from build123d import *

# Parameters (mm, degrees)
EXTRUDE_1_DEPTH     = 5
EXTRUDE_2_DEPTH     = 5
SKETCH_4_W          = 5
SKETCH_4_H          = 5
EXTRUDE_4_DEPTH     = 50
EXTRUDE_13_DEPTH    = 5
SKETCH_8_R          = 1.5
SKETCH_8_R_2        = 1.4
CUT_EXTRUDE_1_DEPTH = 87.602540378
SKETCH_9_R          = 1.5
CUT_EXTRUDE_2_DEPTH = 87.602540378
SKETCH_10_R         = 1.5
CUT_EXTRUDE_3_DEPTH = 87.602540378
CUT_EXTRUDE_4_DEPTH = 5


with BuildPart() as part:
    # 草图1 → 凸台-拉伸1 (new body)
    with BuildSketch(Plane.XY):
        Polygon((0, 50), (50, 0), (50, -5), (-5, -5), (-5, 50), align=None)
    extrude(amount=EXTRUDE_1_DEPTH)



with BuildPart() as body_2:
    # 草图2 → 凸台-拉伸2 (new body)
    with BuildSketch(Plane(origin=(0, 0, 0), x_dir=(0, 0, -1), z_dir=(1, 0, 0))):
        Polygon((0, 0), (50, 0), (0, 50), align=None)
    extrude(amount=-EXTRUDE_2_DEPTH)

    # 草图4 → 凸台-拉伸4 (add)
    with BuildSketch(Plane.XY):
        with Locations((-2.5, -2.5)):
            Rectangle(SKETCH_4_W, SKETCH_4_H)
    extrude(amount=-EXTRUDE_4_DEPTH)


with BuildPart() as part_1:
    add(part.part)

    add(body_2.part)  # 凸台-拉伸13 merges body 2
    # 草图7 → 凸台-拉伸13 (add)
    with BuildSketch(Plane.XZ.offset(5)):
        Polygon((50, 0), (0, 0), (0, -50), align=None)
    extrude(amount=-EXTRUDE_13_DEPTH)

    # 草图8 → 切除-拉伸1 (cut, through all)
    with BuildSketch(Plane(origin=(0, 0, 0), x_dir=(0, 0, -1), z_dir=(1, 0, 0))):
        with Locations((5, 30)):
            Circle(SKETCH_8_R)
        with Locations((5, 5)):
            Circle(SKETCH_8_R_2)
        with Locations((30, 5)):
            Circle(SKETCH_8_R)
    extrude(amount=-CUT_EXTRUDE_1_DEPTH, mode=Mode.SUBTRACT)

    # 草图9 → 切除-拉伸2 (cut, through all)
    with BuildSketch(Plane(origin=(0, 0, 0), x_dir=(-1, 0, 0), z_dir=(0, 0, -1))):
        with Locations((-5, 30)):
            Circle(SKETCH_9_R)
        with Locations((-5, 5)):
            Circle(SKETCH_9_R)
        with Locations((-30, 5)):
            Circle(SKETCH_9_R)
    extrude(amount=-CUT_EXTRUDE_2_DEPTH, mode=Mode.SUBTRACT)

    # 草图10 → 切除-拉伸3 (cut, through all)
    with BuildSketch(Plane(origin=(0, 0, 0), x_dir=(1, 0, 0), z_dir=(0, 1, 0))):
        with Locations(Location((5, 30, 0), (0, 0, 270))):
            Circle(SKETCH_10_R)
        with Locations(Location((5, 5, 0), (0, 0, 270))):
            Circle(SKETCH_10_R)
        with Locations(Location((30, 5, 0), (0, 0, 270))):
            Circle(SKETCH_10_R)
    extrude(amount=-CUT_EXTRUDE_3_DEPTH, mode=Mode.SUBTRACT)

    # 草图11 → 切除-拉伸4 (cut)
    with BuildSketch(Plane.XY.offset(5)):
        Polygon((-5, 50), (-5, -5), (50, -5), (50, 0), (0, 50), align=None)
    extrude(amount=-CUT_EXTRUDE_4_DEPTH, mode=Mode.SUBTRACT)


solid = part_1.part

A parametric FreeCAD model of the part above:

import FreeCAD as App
import Part
import Sketcher


def add_polygon(sketch, points):
    """Adds a closed chain of lines whose ends are joined by coincident constraints."""
    first, n = sketch.GeometryCount, len(points)
    for a, b in zip(points, points[1:] + points[:1]):
        sketch.addGeometry(Part.LineSegment(App.Vector(*a, 0), App.Vector(*b, 0)), False)
    for i in range(n):
        sketch.addConstraint(Sketcher.Constraint("Coincident", first + i, 2, first + (i + 1) % n, 1))

doc = App.newDocument("Part")
body = doc.addObject("PartDesign::Body", "Body")

# Sketch on XY plane
sketch1 = body.newObject("Sketcher::SketchObject", "Sketch")
sketch1.AttachmentSupport = (doc.getObject("XY_Plane"), [""])
sketch1.MapMode = "FlatFace"
add_polygon(sketch1, [(50, 0), (0, 50), (-5, 50), (-5, -5), (50, -5)])  # lines 0-4
sketch1.addConstraint(Sketcher.Constraint("Horizontal", 1))
sketch1.addConstraint(Sketcher.Constraint("Vertical", 2))
sketch1.addConstraint(Sketcher.Constraint("Horizontal", 3))
sketch1.addConstraint(Sketcher.Constraint("Vertical", 4))
sketch1.addConstraint(Sketcher.Constraint("PointOnObject", 0, 2, -2))
sketch1.addConstraint(Sketcher.Constraint("PointOnObject", 4, 2, -1))
sketch1.addConstraint(Sketcher.Constraint("Equal", 3, 2))
sketch1.addConstraint(Sketcher.Constraint("Equal", 1, 4))
sketch1.addConstraint(Sketcher.Constraint("DistanceX", 1, 2, 1, 1, 5.0))
sketch1.addConstraint(Sketcher.Constraint("DistanceX", 3, 1, 3, 2, 55.0))
pad1 = body.newObject("PartDesign::Pad", "Pad")
pad1.Profile = sketch1
pad1.Length = 5
body2 = doc.addObject("PartDesign::Body", "Body001")

# Sketch on YZ plane
sketch2 = body2.newObject("Sketcher::SketchObject", "Sketch001")
sketch2.AttachmentSupport = (doc.getObject("YZ_Plane001"), [""])
sketch2.MapMode = "FlatFace"
add_polygon(sketch2, [(0, 0), (0, -50), (50, 0)])  # lines 0-2
sketch2.addConstraint(Sketcher.Constraint("Vertical", 0))
sketch2.addConstraint(Sketcher.Constraint("Horizontal", 2))
sketch2.addConstraint(Sketcher.Constraint("Coincident", 2, 2, -1, 1))
sketch2.addConstraint(Sketcher.Constraint("Equal", 2, 0))
sketch2.addConstraint(Sketcher.Constraint("DistanceX", 2, 2, 2, 1, 50.0))
pad2 = body2.newObject("PartDesign::Pad", "Pad001")
pad2.Profile = sketch2
pad2.Length = 5
pad2.Reversed = True

# Sketch on XY plane
sketch3 = body2.newObject("Sketcher::SketchObject", "Sketch002")
sketch3.AttachmentSupport = (doc.getObject("XY_Plane001"), [""])
sketch3.MapMode = "FlatFace"
add_polygon(sketch3, [(-5, 0), (-5, -5), (0, -5), (0, 0)])  # lines 0-3
sketch3.addConstraint(Sketcher.Constraint("Vertical", 0))
sketch3.addConstraint(Sketcher.Constraint("Horizontal", 1))
sketch3.addConstraint(Sketcher.Constraint("Vertical", 2))
sketch3.addConstraint(Sketcher.Constraint("Horizontal", 3))
sketch3.addConstraint(Sketcher.Constraint("Coincident", 2, 2, -1, 1))
sketch3.addConstraint(Sketcher.Constraint("Equal", 3, 0))
sketch3.addConstraint(Sketcher.Constraint("DistanceX", 1, 1, 1, 2, 5.0))
pad3 = body2.newObject("PartDesign::Pad", "Pad002")
pad3.Profile = sketch3
pad3.Length = 50
pad3.Reversed = True
doc.recompute()

boolean = body.newObject("PartDesign::Boolean", "Boolean")
boolean.Type = "Fuse"
boolean.addObjects([body2])

# Sketch on XZ plane
sketch4 = body.newObject("Sketcher::SketchObject", "Sketch003")
sketch4.AttachmentSupport = (doc.getObject("XZ_Plane"), [""])
sketch4.MapMode = "FlatFace"
sketch4.AttachmentOffset = App.Placement(App.Vector(0, 0, 5), App.Rotation())
add_polygon(sketch4, [(50, 0), (0, 0), (0, -50)])  # lines 0-2
sketch4.addConstraint(Sketcher.Constraint("Horizontal", 0))
sketch4.addConstraint(Sketcher.Constraint("Vertical", 1))
sketch4.addConstraint(Sketcher.Constraint("Coincident", 0, 2, -1, 1))
sketch4.addConstraint(Sketcher.Constraint("Equal", 0, 1))
sketch4.addConstraint(Sketcher.Constraint("DistanceX", 0, 2, 0, 1, 50.0))
pad4 = body.newObject("PartDesign::Pad", "Pad003")
pad4.Profile = sketch4
pad4.Length = 5
pad4.Reversed = True

# Sketch on YZ plane
sketch5 = body.newObject("Sketcher::SketchObject", "Sketch004")
sketch5.AttachmentSupport = (doc.getObject("YZ_Plane"), [""])
sketch5.MapMode = "FlatFace"
sketch5.addGeometry(Part.Circle(App.Vector(30, -5, 0), App.Vector(0, 0, 1), 1.5), False)
sketch5.addGeometry(Part.Circle(App.Vector(5, -5, 0), App.Vector(0, 0, 1), 1.4), False)
sketch5.addGeometry(Part.Circle(App.Vector(5, -30, 0), App.Vector(0, 0, 1), 1.5), False)
sketch5.addConstraint(Sketcher.Constraint("Equal", 0, 2))
sketch5.addConstraint(Sketcher.Constraint("Horizontal", 0, 3, 1, 3))
sketch5.addConstraint(Sketcher.Constraint("Vertical", 1, 3, 2, 3))
sketch5.addConstraint(Sketcher.Constraint("Diameter", 0, 3.0))
sketch5.addConstraint(Sketcher.Constraint("Diameter", 1, 2.8))
sketch5.addConstraint(Sketcher.Constraint("DistanceX", -1, 1, 0, 3, 30.0))
sketch5.addConstraint(Sketcher.Constraint("DistanceY", 0, 3, -1, 1, 5.0))
sketch5.addConstraint(Sketcher.Constraint("DistanceX", -1, 1, 1, 3, 5.0))
sketch5.addConstraint(Sketcher.Constraint("DistanceY", 2, 3, -1, 1, 30.0))
pocket1 = body.newObject("PartDesign::Pocket", "Pocket")
pocket1.Profile = sketch5
pocket1.Type = "ThroughAll"

# Sketch on XY plane
sketch6 = body.newObject("Sketcher::SketchObject", "Sketch005")
sketch6.AttachmentSupport = (doc.getObject("XY_Plane"), [""])
sketch6.MapMode = "FlatFace"
sketch6.addGeometry(Part.Circle(App.Vector(5, 30, 0), App.Vector(0, 0, 1), 1.5), False)
sketch6.addGeometry(Part.Circle(App.Vector(5, 5, 0), App.Vector(0, 0, 1), 1.5), False)
sketch6.addGeometry(Part.Circle(App.Vector(30, 5, 0), App.Vector(0, 0, 1), 1.5), False)
sketch6.addConstraint(Sketcher.Constraint("Equal", 0, 1))
sketch6.addConstraint(Sketcher.Constraint("Equal", 1, 2))
sketch6.addConstraint(Sketcher.Constraint("Horizontal", 1, 3, 2, 3))
sketch6.addConstraint(Sketcher.Constraint("Vertical", 0, 3, 1, 3))
sketch6.addConstraint(Sketcher.Constraint("Diameter", 0, 3.0))
sketch6.addConstraint(Sketcher.Constraint("DistanceX", -1, 1, 0, 3, 5.0))
sketch6.addConstraint(Sketcher.Constraint("DistanceY", -1, 1, 0, 3, 30.0))
sketch6.addConstraint(Sketcher.Constraint("DistanceY", -1, 1, 1, 3, 5.0))
sketch6.addConstraint(Sketcher.Constraint("DistanceX", -1, 1, 2, 3, 30.0))
pocket2 = body.newObject("PartDesign::Pocket", "Pocket001")
pocket2.Profile = sketch6
pocket2.Type = "ThroughAll"
pocket2.Reversed = True

# Sketch on XZ plane
sketch7 = body.newObject("Sketcher::SketchObject", "Sketch006")
sketch7.AttachmentSupport = (doc.getObject("XZ_Plane"), [""])
sketch7.MapMode = "FlatFace"
sketch7.addGeometry(Part.Circle(App.Vector(5, -30, 0), App.Vector(0, 0, 1), 1.5), False)
sketch7.addGeometry(Part.Circle(App.Vector(5, -5, 0), App.Vector(0, 0, 1), 1.5), False)
sketch7.addGeometry(Part.Circle(App.Vector(30, -5, 0), App.Vector(0, 0, 1), 1.5), False)
sketch7.addConstraint(Sketcher.Constraint("Equal", 0, 1))
sketch7.addConstraint(Sketcher.Constraint("Equal", 1, 2))
sketch7.addConstraint(Sketcher.Constraint("Horizontal", 1, 3, 2, 3))
sketch7.addConstraint(Sketcher.Constraint("Vertical", 0, 3, 1, 3))
sketch7.addConstraint(Sketcher.Constraint("Diameter", 0, 3.0))
sketch7.addConstraint(Sketcher.Constraint("DistanceX", -1, 1, 0, 3, 5.0))
sketch7.addConstraint(Sketcher.Constraint("DistanceY", 0, 3, -1, 1, 30.0))
sketch7.addConstraint(Sketcher.Constraint("DistanceY", 1, 3, -1, 1, 5.0))
sketch7.addConstraint(Sketcher.Constraint("DistanceX", -1, 1, 2, 3, 30.0))
pocket3 = body.newObject("PartDesign::Pocket", "Pocket002")
pocket3.Profile = sketch7
pocket3.Type = "ThroughAll"
pocket3.Reversed = True

# Sketch on XY plane
sketch8 = body.newObject("Sketcher::SketchObject", "Sketch007")
sketch8.AttachmentSupport = (doc.getObject("XY_Plane"), [""])
sketch8.MapMode = "FlatFace"
sketch8.AttachmentOffset = App.Placement(App.Vector(0, 0, 5), App.Rotation())
add_polygon(sketch8, [(-5, 50), (-5, -5), (50, -5), (50, 0), (0, 50)])  # lines 0-4
sketch8.addConstraint(Sketcher.Constraint("Vertical", 0))
sketch8.addConstraint(Sketcher.Constraint("Horizontal", 1))
sketch8.addConstraint(Sketcher.Constraint("Vertical", 2))
sketch8.addConstraint(Sketcher.Constraint("Horizontal", 4))
sketch8.addConstraint(Sketcher.Constraint("PointOnObject", 2, 2, -1))
sketch8.addConstraint(Sketcher.Constraint("PointOnObject", 3, 2, -2))
sketch8.addConstraint(Sketcher.Constraint("Equal", 1, 0))
sketch8.addConstraint(Sketcher.Constraint("Equal", 4, 2))
sketch8.addConstraint(Sketcher.Constraint("DistanceX", 1, 1, 1, 2, 55.0))
sketch8.addConstraint(Sketcher.Constraint("DistanceX", 4, 2, 4, 1, 5.0))
pocket4 = body.newObject("PartDesign::Pocket", "Pocket003")
pocket4.Profile = sketch8
pocket4.Length = 5

doc.recompute()
